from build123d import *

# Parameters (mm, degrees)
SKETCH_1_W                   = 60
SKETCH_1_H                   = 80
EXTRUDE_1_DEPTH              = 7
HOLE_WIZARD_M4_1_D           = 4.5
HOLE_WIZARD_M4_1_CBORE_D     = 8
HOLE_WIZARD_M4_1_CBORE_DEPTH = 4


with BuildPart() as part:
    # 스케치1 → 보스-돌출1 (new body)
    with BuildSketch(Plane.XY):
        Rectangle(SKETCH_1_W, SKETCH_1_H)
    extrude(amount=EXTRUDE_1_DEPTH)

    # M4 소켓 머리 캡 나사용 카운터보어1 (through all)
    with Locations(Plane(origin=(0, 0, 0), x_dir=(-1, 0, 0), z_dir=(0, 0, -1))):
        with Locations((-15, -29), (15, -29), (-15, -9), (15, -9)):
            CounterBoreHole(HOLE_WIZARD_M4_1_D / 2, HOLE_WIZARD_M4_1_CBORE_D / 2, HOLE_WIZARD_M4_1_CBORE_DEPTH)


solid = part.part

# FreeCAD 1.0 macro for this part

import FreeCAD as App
import Part
import Sketcher
Q = App.Units.Quantity


def add_polygon(sketch, points):
    """Adds a closed chain of lines whose ends are joined by coincident constraints."""
    first, n = sketch.GeometryCount, len(points)
    for a, b in zip(points, points[1:] + points[:1]):
        sketch.addGeometry(Part.LineSegment(App.Vector(*a, 0), App.Vector(*b, 0)), False)
    for i in range(n):
        sketch.addConstraint(Sketcher.Constraint("Coincident", first + i, 2, first + (i + 1) % n, 1))

doc = App.newDocument("Part")
body = doc.addObject("PartDesign::Body", "Body")

sketch1 = doc.addObject("Sketcher::SketchObject", "Sketch")
body.addObject(sketch1)
sketch1.AttachmentSupport = (doc.XY_Plane, [""])
sketch1.MapMode = "FlatFace"
add_polygon(sketch1, [(-30, 40), (-30, -40), (30, -40), (30, 40)])
sketch1.addConstraint(Sketcher.Constraint("Vertical", 0))
sketch1.addConstraint(Sketcher.Constraint("Horizontal", 1))
sketch1.addConstraint(Sketcher.Constraint("Vertical", 2))
sketch1.addConstraint(Sketcher.Constraint("Horizontal", 3))
sketch1.addConstraint(Sketcher.Constraint("Symmetric", 0, 2, 2, 2, -1, 1))
sketch1.addConstraint(Sketcher.Constraint("DistanceX", 1, 1, 1, 2, Q("60 mm")))
sketch1.addConstraint(Sketcher.Constraint("DistanceY", 0, 2, 0, 1, Q("80 mm")))
pad1 = doc.addObject("PartDesign::Pad", "Pad")
body.addObject(pad1)
pad1.Profile = sketch1
pad1.Length = 7

sketch2 = doc.addObject("Sketcher::SketchObject", "Sketch001")
body.addObject(sketch2)
sketch2.AttachmentSupport = (doc.XY_Plane, [""])
sketch2.MapMode = "FlatFace"
sketch2.addGeometry(Part.Circle(App.Vector(15, -29, 0), App.Vector(0, 0, 1), 2.2), False)
sketch2.addGeometry(Part.Circle(App.Vector(-15, -29, 0), App.Vector(0, 0, 1), 2.2), False)
sketch2.addGeometry(Part.Circle(App.Vector(15, -9, 0), App.Vector(0, 0, 1), 2.2), False)
sketch2.addGeometry(Part.Circle(App.Vector(-15, -9, 0), App.Vector(0, 0, 1), 2.2), False)
sketch2.addConstraint(Sketcher.Constraint("Equal", 0, 1))
sketch2.addConstraint(Sketcher.Constraint("Equal", 1, 2))
sketch2.addConstraint(Sketcher.Constraint("Equal", 2, 3))
sketch2.addConstraint(Sketcher.Constraint("Symmetric", 0, 3, 1, 3, -2))
sketch2.addConstraint(Sketcher.Constraint("Symmetric", 2, 3, 3, 3, -2))
sketch2.addConstraint(Sketcher.Constraint("Vertical", 0, 3, 2, 3))
sketch2.addConstraint(Sketcher.Constraint("Diameter", 0, Q("4.5 mm")))
sketch2.addConstraint(Sketcher.Constraint("DistanceX", -1, 1, 0, 3, Q("15 mm")))
sketch2.addConstraint(Sketcher.Constraint("DistanceY", 0, 3, -1, 1, Q("29 mm")))
sketch2.addConstraint(Sketcher.Constraint("DistanceY", 2, 3, -1, 1, Q("9 mm")))
doc.recompute()
hole = doc.addObject("PartDesign::Hole", "Hole")
body.addObject(hole)
hole.Profile = sketch2
hole.ThreadType = "None"
hole.Diameter = 4.5
hole.DepthType = "ThroughAll"
hole.HoleCutType = "Counterbore"
hole.HoleCutDiameter = 8
hole.HoleCutDepth = 4
hole.Reversed = True

doc.recompute()
